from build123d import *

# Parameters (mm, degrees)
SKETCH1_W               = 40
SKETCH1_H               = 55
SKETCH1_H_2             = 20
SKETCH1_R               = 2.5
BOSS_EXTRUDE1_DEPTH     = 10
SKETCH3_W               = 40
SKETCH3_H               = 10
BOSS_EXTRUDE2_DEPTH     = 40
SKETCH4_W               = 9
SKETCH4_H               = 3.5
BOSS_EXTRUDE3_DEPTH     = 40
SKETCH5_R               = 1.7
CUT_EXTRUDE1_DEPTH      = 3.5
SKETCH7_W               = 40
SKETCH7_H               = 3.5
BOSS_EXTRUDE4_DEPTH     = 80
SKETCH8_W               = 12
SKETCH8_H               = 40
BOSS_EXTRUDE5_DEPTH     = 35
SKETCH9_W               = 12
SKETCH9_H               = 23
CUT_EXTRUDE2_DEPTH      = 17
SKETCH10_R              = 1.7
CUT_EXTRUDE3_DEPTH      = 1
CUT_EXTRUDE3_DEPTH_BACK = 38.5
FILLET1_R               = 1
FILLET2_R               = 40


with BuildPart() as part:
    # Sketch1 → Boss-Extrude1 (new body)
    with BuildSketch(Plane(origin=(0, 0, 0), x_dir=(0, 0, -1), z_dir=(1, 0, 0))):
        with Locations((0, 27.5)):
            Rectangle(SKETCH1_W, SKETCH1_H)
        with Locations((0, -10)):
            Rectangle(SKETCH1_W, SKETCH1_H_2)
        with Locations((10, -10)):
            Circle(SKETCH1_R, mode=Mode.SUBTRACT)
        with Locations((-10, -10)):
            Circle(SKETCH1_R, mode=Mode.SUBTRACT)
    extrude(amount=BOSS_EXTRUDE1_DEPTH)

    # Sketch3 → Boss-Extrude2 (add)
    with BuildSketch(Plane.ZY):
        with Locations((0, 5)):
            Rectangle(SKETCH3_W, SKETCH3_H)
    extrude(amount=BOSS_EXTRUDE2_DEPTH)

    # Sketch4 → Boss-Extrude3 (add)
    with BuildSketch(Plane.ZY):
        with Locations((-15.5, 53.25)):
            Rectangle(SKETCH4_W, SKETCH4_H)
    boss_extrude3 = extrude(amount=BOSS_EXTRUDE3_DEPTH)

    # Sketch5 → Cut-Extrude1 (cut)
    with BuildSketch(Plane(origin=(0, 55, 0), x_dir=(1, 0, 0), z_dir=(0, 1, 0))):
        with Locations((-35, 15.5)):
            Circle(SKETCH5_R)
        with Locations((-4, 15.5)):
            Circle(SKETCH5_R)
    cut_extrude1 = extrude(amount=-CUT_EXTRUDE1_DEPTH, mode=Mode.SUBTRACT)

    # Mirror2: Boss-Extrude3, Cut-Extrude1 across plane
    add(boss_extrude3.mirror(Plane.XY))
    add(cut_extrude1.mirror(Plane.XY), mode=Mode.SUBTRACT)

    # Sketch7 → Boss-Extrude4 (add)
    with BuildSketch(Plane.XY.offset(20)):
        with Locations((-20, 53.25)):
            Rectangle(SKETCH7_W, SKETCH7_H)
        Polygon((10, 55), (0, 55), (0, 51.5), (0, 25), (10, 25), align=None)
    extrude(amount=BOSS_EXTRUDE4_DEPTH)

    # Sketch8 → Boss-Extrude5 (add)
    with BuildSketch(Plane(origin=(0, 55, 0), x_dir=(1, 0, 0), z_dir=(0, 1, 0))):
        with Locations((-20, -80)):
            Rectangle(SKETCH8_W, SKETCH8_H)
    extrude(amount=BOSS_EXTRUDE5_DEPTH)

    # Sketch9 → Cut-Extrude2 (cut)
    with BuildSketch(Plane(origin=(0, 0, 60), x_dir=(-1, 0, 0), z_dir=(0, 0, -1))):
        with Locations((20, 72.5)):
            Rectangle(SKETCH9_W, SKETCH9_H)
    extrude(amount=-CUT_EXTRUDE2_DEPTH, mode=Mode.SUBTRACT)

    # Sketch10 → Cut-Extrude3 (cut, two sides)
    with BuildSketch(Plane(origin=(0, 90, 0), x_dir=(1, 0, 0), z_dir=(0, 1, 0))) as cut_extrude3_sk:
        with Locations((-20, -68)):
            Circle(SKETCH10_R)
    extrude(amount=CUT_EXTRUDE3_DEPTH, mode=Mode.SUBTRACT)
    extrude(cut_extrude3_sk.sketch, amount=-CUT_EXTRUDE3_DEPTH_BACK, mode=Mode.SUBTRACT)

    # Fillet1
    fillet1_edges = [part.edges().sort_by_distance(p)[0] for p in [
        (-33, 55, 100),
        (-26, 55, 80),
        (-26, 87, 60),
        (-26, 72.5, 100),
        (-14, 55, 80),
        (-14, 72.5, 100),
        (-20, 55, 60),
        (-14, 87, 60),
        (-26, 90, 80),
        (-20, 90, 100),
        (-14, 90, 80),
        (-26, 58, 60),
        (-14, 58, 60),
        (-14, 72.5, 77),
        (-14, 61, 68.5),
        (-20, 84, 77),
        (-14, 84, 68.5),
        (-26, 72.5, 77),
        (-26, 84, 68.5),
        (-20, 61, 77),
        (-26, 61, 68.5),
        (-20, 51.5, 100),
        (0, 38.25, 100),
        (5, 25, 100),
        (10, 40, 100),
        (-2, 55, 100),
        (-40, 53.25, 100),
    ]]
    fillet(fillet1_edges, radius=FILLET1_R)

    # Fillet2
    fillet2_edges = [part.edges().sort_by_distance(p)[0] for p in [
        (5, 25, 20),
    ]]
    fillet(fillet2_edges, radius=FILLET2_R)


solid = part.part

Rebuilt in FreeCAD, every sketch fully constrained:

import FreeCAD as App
import Part
import Sketcher
from FreeCAD import Vector
Q = App.Units.Quantity


def edges_at(feature, points):
    """Names of the edges that pass closest to the given points."""
    edges = feature.Shape.Edges
    near = lambda p: min(range(len(edges)), key=lambda i: edges[i].distToShape(Part.Vertex(*p))[0])
    return sorted({f"Edge{near(p) + 1}" for p in points})


def add_polygon(sketch, points):
    """Adds a closed chain of lines whose ends are joined by coincident constraints."""
    first, n = sketch.GeometryCount, len(points)
    for a, b in zip(points, points[1:] + points[:1]):
        sketch.addGeometry(Part.LineSegment(App.Vector(*a, 0), App.Vector(*b, 0)), False)
    for i in range(n):
        sketch.addConstraint(Sketcher.Constraint("Coincident", first + i, 2, first + (i + 1) % n, 1))

doc = App.newDocument("Part")
body = doc.addObject("PartDesign::Body", "Body")

sketch1 = doc.addObject("Sketcher::SketchObject", "Sketch")
body.addObject(sketch1)
sketch1.AttachmentSupport = (doc.YZ_Plane, [""])
sketch1.MapMode = "FlatFace"
add_polygon(sketch1, [(55, 20), (-20, 20), (-20, -20), (55, -20)])
sketch1.addGeometry(Part.Circle(Vector(-10, 10, 0), Vector(0, 0, 1), 2.5), False)
sketch1.addGeometry(Part.Circle(Vector(-10, -10, 0), Vector(0, 0, 1), 2.5), False)
sketch1.addConstraint(Sketcher.Constraint("Horizontal", 0))
sketch1.addConstraint(Sketcher.Constraint("Vertical", 1))
sketch1.addConstraint(Sketcher.Constraint("Horizontal", 2))
sketch1.addConstraint(Sketcher.Constraint("Vertical", 3))
sketch1.addConstraint(Sketcher.Constraint("Equal", 4, 5))
sketch1.addConstraint(Sketcher.Constraint("Symmetric", 4, 3, 5, 3, -1))
sketch1.addConstraint(Sketcher.Constraint("Diameter", 4, Q("5 mm")))
sketch1.addConstraint(Sketcher.Constraint("DistanceX", 0, 2, 0, 1, Q("75 mm")))
sketch1.addConstraint(Sketcher.Constraint("DistanceY", 1, 2, 1, 1, Q("40 mm")))
sketch1.addConstraint(Sketcher.Constraint("DistanceX", 4, 3, -1, 1, Q("10 mm")))
sketch1.addConstraint(Sketcher.Constraint("DistanceY", -1, 1, 4, 3, Q("10 mm")))
sketch1.addConstraint(Sketcher.Constraint("DistanceX", 0, 2, -1, 1, Q("20 mm")))
sketch1.addConstraint(Sketcher.Constraint("DistanceY", -1, 1, 0, 2, Q("20 mm")))
pad1 = doc.addObject("PartDesign::Pad", "Pad")
body.addObject(pad1)
pad1.Profile = sketch1
pad1.Length = 10

sketch2 = doc.addObject("Sketcher::SketchObject", "Sketch001")
body.addObject(sketch2)
sketch2.AttachmentSupport = (doc.YZ_Plane, [""])
sketch2.MapMode = "FlatFace"
add_polygon(sketch2, [(10, -20), (0, -20), (0, 20), (10, 20)])
sketch2.addConstraint(Sketcher.Constraint("Horizontal", 0))
sketch2.addConstraint(Sketcher.Constraint("Vertical", 1))
sketch2.addConstraint(Sketcher.Constraint("Horizontal", 2))
sketch2.addConstraint(Sketcher.Constraint("Vertical", 3))
sketch2.addConstraint(Sketcher.Constraint("Symmetric", 0, 2, 1, 2, -1, 1))
sketch2.addConstraint(Sketcher.Constraint("DistanceX", 0, 2, 0, 1, Q("10 mm")))
sketch2.addConstraint(Sketcher.Constraint("DistanceY", 1, 1, 1, 2, Q("40 mm")))
pad2 = doc.addObject("PartDesign::Pad", "Pad001")
body.addObject(pad2)
pad2.Profile = sketch2
pad2.Length = 40
pad2.Reversed = True

sketch3 = doc.addObject("Sketcher::SketchObject", "Sketch002")
body.addObject(sketch3)
sketch3.AttachmentSupport = (doc.YZ_Plane, [""])
sketch3.MapMode = "FlatFace"
add_polygon(sketch3, [(55, -20), (51.5, -20), (51.5, -11), (55, -11)])
sketch3.addConstraint(Sketcher.Constraint("Horizontal", 0))
sketch3.addConstraint(Sketcher.Constraint("Vertical", 1))
sketch3.addConstraint(Sketcher.Constraint("Horizontal", 2))
sketch3.addConstraint(Sketcher.Constraint("Vertical", 3))
sketch3.addConstraint(Sketcher.Constraint("DistanceY", 1, 1, 1, 2, Q("9 mm")))
sketch3.addConstraint(Sketcher.Constraint("DistanceX", 0, 2, 0, 1, Q("3.5 mm")))
sketch3.addConstraint(Sketcher.Constraint("DistanceY", 0, 2, -1, 1, Q("20 mm")))
sketch3.addConstraint(Sketcher.Constraint("DistanceX", -1, 1, 2, 2, Q("55 mm")))
pad3 = doc.addObject("PartDesign::Pad", "Pad002")
body.addObject(pad3)
pad3.Profile = sketch3
pad3.Length = 40
pad3.Reversed = True

sketch4 = doc.addObject("Sketcher::SketchObject", "Sketch003")
body.addObject(sketch4)
sketch4.AttachmentSupport = (doc.XZ_Plane, [""])
sketch4.MapMode = "FlatFace"
sketch4.AttachmentOffset = App.Placement(Vector(0, 0, -55), App.Rotation())
sketch4.addGeometry(Part.Circle(Vector(-35, -15.5, 0), Vector(0, 0, 1), 1.7), False)
sketch4.addGeometry(Part.Circle(Vector(-4, -15.5, 0), Vector(0, 0, 1), 1.7), False)
sketch4.addConstraint(Sketcher.Constraint("Equal", 0, 1))
sketch4.addConstraint(Sketcher.Constraint("Horizontal", 0, 3, 1, 3))
sketch4.addConstraint(Sketcher.Constraint("Diameter", 0, Q("3.4 mm")))
sketch4.addConstraint(Sketcher.Constraint("DistanceX", 0, 3, -1, 1, Q("35 mm")))
sketch4.addConstraint(Sketcher.Constraint("DistanceX", 1, 3, -1, 1, Q("4 mm")))
sketch4.addConstraint(Sketcher.Constraint("DistanceY", 0, 3, -1, 1, Q("15.5 mm")))
pocket1 = doc.addObject("PartDesign::Pocket", "Pocket")
body.addObject(pocket1)
pocket1.Profile = sketch4
pocket1.Length = 3.5
pocket1.Reversed = True
doc.recompute()

mirrored = doc.addObject("PartDesign::Mirrored", "Mirrored")
body.addObject(mirrored)
mirrored.Originals = [pad3, pocket1]
mirrored.MirrorPlane = (doc.XY_Plane, [""])
body.Tip = mirrored

sketch5 = doc.addObject("Sketcher::SketchObject", "Sketch004")
body.addObject(sketch5)
sketch5.AttachmentSupport = (doc.XY_Plane, [""])
sketch5.MapMode = "FlatFace"
sketch5.AttachmentOffset = App.Placement(Vector(0, 0, 20), App.Rotation())
add_polygon(sketch5, [(-40, 55), (-40, 51.5), (0, 51.5), (0, 25), (10, 25), (10, 55)])
sketch5.addConstraint(Sketcher.Constraint("Vertical", 0))
sketch5.addConstraint(Sketcher.Constraint("Horizontal", 1))
sketch5.addConstraint(Sketcher.Constraint("Vertical", 2))
sketch5.addConstraint(Sketcher.Constraint("Horizontal", 3))
sketch5.addConstraint(Sketcher.Constraint("Vertical", 4))
sketch5.addConstraint(Sketcher.Constraint("Horizontal", 5))
sketch5.addConstraint(Sketcher.Constraint("PointOnObject", 1, 2, -2))
sketch5.addConstraint(Sketcher.Constraint("DistanceX", 1, 1, 1, 2, Q("40 mm")))
sketch5.addConstraint(Sketcher.Constraint("DistanceX", 3, 1, 3, 2, Q("10 mm")))
sketch5.addConstraint(Sketcher.Constraint("DistanceY", 4, 1, 4, 2, Q("30 mm")))
sketch5.addConstraint(Sketcher.Constraint("DistanceY", 0, 2, 0, 1, Q("3.5 mm")))
sketch5.addConstraint(Sketcher.Constraint("DistanceY", -1, 1, 2, 2, Q("25 mm")))
pad4 = doc.addObject("PartDesign::Pad", "Pad003")
body.addObject(pad4)
pad4.Profile = sketch5
pad4.Length = 80

sketch6 = doc.addObject("Sketcher::SketchObject", "Sketch005")
body.addObject(sketch6)
sketch6.AttachmentSupport = (doc.XZ_Plane, [""])
sketch6.MapMode = "FlatFace"
sketch6.AttachmentOffset = App.Placement(Vector(0, 0, -55), App.Rotation())
add_polygon(sketch6, [(-26, 60), (-26, 100), (-14, 100), (-14, 60)])
sketch6.addConstraint(Sketcher.Constraint("Vertical", 0))
sketch6.addConstraint(Sketcher.Constraint("Horizontal", 1))
sketch6.addConstraint(Sketcher.Constraint("Vertical", 2))
sketch6.addConstraint(Sketcher.Constraint("Horizontal", 3))
sketch6.addConstraint(Sketcher.Constraint("DistanceX", 1, 1, 1, 2, Q("12 mm")))
sketch6.addConstraint(Sketcher.Constraint("DistanceY", 0, 1, 0, 2, Q("40 mm")))
sketch6.addConstraint(Sketcher.Constraint("DistanceX", 0, 2, -1, 1, Q("26 mm")))
sketch6.addConstraint(Sketcher.Constraint("DistanceY", -1, 1, 0, 2, Q("100 mm")))
pad5 = doc.addObject("PartDesign::Pad", "Pad004")
body.addObject(pad5)
pad5.Profile = sketch6
pad5.Length = 35
pad5.Reversed = True

sketch7 = doc.addObject("Sketcher::SketchObject", "Sketch006")
body.addObject(sketch7)
sketch7.AttachmentSupport = (doc.XY_Plane, [""])
sketch7.MapMode = "FlatFace"
sketch7.AttachmentOffset = App.Placement(Vector(0, 0, 60), App.Rotation())
add_polygon(sketch7, [(-14, 84), (-14, 61), (-26, 61), (-26, 84)])
sketch7.addConstraint(Sketcher.Constraint("Vertical", 0))
sketch7.addConstraint(Sketcher.Constraint("Horizontal", 1))
sketch7.addConstraint(Sketcher.Constraint("Vertical", 2))
sketch7.addConstraint(Sketcher.Constraint("Horizontal", 3))
sketch7.addConstraint(Sketcher.Constraint("DistanceX", 1, 2, 1, 1, Q("12 mm")))
sketch7.addConstraint(Sketcher.Constraint("DistanceY", 0, 2, 0, 1, Q("23 mm")))
sketch7.addConstraint(Sketcher.Constraint("DistanceX", 0, 2, -1, 1, Q("14 mm")))
sketch7.addConstraint(Sketcher.Constraint("DistanceY", -1, 1, 0, 2, Q("61 mm")))
pocket2 = doc.addObject("PartDesign::Pocket", "Pocket001")
body.addObject(pocket2)
pocket2.Profile = sketch7
pocket2.Length = 17
pocket2.Reversed = True

sketch8 = doc.addObject("Sketcher::SketchObject", "Sketch007")
body.addObject(sketch8)
sketch8.AttachmentSupport = (doc.XZ_Plane, [""])
sketch8.MapMode = "FlatFace"
sketch8.AttachmentOffset = App.Placement(Vector(0, 0, -90), App.Rotation())
sketch8.addGeometry(Part.Circle(Vector(-20, 68, 0), Vector(0, 0, 1), 1.7), False)
sketch8.addConstraint(Sketcher.Constraint("Diameter", 0, Q("3.4 mm")))
sketch8.addConstraint(Sketcher.Constraint("DistanceX", 0, 3, -1, 1, Q("20 mm")))
sketch8.addConstraint(Sketcher.Constraint("DistanceY", -1, 1, 0, 3, Q("68 mm")))
pocket3 = doc.addObject("PartDesign::Pocket", "Pocket002")
body.addObject(pocket3)
pocket3.Profile = sketch8
pocket3.Type = "ThroughAll"
pocket3.Midplane = True
doc.recompute()

fillet = doc.addObject("PartDesign::Fillet", "Fillet")
body.addObject(fillet)
fillet.Base = (pocket3, edges_at(pocket3, [
    (-33, 55, 100),
    (-26, 55, 80),
    (-26, 87, 60),
    (-26, 72.5, 100),
    (-14, 55, 80),
    (-14, 72.5, 100),
    (-20, 55, 60),
    (-14, 87, 60),
    (-26, 90, 80),
    (-20, 90, 100),
    (-14, 90, 80),
    (-26, 58, 60),
    (-14, 58, 60),
    (-14, 72.5, 77),
    (-14, 61, 68.5),
    (-20, 84, 77),
    (-14, 84, 68.5),
    (-26, 72.5, 77),
    (-26, 84, 68.5),
    (-20, 61, 77),
    (-26, 61, 68.5),
    (-20, 51.5, 100),
    (0, 38.25, 100),
    (5, 25, 100),
    (10, 40, 100),
    (-2, 55, 100),
    (-40, 53.25, 100),
]))
fillet.Radius = 1
doc.recompute()

fillet2 = doc.addObject("PartDesign::Fillet", "Fillet001")
body.addObject(fillet2)
fillet2.Base = (fillet, edges_at(fillet, [(5, 25, 20)]))
fillet2.Radius = 40

doc.recompute()
